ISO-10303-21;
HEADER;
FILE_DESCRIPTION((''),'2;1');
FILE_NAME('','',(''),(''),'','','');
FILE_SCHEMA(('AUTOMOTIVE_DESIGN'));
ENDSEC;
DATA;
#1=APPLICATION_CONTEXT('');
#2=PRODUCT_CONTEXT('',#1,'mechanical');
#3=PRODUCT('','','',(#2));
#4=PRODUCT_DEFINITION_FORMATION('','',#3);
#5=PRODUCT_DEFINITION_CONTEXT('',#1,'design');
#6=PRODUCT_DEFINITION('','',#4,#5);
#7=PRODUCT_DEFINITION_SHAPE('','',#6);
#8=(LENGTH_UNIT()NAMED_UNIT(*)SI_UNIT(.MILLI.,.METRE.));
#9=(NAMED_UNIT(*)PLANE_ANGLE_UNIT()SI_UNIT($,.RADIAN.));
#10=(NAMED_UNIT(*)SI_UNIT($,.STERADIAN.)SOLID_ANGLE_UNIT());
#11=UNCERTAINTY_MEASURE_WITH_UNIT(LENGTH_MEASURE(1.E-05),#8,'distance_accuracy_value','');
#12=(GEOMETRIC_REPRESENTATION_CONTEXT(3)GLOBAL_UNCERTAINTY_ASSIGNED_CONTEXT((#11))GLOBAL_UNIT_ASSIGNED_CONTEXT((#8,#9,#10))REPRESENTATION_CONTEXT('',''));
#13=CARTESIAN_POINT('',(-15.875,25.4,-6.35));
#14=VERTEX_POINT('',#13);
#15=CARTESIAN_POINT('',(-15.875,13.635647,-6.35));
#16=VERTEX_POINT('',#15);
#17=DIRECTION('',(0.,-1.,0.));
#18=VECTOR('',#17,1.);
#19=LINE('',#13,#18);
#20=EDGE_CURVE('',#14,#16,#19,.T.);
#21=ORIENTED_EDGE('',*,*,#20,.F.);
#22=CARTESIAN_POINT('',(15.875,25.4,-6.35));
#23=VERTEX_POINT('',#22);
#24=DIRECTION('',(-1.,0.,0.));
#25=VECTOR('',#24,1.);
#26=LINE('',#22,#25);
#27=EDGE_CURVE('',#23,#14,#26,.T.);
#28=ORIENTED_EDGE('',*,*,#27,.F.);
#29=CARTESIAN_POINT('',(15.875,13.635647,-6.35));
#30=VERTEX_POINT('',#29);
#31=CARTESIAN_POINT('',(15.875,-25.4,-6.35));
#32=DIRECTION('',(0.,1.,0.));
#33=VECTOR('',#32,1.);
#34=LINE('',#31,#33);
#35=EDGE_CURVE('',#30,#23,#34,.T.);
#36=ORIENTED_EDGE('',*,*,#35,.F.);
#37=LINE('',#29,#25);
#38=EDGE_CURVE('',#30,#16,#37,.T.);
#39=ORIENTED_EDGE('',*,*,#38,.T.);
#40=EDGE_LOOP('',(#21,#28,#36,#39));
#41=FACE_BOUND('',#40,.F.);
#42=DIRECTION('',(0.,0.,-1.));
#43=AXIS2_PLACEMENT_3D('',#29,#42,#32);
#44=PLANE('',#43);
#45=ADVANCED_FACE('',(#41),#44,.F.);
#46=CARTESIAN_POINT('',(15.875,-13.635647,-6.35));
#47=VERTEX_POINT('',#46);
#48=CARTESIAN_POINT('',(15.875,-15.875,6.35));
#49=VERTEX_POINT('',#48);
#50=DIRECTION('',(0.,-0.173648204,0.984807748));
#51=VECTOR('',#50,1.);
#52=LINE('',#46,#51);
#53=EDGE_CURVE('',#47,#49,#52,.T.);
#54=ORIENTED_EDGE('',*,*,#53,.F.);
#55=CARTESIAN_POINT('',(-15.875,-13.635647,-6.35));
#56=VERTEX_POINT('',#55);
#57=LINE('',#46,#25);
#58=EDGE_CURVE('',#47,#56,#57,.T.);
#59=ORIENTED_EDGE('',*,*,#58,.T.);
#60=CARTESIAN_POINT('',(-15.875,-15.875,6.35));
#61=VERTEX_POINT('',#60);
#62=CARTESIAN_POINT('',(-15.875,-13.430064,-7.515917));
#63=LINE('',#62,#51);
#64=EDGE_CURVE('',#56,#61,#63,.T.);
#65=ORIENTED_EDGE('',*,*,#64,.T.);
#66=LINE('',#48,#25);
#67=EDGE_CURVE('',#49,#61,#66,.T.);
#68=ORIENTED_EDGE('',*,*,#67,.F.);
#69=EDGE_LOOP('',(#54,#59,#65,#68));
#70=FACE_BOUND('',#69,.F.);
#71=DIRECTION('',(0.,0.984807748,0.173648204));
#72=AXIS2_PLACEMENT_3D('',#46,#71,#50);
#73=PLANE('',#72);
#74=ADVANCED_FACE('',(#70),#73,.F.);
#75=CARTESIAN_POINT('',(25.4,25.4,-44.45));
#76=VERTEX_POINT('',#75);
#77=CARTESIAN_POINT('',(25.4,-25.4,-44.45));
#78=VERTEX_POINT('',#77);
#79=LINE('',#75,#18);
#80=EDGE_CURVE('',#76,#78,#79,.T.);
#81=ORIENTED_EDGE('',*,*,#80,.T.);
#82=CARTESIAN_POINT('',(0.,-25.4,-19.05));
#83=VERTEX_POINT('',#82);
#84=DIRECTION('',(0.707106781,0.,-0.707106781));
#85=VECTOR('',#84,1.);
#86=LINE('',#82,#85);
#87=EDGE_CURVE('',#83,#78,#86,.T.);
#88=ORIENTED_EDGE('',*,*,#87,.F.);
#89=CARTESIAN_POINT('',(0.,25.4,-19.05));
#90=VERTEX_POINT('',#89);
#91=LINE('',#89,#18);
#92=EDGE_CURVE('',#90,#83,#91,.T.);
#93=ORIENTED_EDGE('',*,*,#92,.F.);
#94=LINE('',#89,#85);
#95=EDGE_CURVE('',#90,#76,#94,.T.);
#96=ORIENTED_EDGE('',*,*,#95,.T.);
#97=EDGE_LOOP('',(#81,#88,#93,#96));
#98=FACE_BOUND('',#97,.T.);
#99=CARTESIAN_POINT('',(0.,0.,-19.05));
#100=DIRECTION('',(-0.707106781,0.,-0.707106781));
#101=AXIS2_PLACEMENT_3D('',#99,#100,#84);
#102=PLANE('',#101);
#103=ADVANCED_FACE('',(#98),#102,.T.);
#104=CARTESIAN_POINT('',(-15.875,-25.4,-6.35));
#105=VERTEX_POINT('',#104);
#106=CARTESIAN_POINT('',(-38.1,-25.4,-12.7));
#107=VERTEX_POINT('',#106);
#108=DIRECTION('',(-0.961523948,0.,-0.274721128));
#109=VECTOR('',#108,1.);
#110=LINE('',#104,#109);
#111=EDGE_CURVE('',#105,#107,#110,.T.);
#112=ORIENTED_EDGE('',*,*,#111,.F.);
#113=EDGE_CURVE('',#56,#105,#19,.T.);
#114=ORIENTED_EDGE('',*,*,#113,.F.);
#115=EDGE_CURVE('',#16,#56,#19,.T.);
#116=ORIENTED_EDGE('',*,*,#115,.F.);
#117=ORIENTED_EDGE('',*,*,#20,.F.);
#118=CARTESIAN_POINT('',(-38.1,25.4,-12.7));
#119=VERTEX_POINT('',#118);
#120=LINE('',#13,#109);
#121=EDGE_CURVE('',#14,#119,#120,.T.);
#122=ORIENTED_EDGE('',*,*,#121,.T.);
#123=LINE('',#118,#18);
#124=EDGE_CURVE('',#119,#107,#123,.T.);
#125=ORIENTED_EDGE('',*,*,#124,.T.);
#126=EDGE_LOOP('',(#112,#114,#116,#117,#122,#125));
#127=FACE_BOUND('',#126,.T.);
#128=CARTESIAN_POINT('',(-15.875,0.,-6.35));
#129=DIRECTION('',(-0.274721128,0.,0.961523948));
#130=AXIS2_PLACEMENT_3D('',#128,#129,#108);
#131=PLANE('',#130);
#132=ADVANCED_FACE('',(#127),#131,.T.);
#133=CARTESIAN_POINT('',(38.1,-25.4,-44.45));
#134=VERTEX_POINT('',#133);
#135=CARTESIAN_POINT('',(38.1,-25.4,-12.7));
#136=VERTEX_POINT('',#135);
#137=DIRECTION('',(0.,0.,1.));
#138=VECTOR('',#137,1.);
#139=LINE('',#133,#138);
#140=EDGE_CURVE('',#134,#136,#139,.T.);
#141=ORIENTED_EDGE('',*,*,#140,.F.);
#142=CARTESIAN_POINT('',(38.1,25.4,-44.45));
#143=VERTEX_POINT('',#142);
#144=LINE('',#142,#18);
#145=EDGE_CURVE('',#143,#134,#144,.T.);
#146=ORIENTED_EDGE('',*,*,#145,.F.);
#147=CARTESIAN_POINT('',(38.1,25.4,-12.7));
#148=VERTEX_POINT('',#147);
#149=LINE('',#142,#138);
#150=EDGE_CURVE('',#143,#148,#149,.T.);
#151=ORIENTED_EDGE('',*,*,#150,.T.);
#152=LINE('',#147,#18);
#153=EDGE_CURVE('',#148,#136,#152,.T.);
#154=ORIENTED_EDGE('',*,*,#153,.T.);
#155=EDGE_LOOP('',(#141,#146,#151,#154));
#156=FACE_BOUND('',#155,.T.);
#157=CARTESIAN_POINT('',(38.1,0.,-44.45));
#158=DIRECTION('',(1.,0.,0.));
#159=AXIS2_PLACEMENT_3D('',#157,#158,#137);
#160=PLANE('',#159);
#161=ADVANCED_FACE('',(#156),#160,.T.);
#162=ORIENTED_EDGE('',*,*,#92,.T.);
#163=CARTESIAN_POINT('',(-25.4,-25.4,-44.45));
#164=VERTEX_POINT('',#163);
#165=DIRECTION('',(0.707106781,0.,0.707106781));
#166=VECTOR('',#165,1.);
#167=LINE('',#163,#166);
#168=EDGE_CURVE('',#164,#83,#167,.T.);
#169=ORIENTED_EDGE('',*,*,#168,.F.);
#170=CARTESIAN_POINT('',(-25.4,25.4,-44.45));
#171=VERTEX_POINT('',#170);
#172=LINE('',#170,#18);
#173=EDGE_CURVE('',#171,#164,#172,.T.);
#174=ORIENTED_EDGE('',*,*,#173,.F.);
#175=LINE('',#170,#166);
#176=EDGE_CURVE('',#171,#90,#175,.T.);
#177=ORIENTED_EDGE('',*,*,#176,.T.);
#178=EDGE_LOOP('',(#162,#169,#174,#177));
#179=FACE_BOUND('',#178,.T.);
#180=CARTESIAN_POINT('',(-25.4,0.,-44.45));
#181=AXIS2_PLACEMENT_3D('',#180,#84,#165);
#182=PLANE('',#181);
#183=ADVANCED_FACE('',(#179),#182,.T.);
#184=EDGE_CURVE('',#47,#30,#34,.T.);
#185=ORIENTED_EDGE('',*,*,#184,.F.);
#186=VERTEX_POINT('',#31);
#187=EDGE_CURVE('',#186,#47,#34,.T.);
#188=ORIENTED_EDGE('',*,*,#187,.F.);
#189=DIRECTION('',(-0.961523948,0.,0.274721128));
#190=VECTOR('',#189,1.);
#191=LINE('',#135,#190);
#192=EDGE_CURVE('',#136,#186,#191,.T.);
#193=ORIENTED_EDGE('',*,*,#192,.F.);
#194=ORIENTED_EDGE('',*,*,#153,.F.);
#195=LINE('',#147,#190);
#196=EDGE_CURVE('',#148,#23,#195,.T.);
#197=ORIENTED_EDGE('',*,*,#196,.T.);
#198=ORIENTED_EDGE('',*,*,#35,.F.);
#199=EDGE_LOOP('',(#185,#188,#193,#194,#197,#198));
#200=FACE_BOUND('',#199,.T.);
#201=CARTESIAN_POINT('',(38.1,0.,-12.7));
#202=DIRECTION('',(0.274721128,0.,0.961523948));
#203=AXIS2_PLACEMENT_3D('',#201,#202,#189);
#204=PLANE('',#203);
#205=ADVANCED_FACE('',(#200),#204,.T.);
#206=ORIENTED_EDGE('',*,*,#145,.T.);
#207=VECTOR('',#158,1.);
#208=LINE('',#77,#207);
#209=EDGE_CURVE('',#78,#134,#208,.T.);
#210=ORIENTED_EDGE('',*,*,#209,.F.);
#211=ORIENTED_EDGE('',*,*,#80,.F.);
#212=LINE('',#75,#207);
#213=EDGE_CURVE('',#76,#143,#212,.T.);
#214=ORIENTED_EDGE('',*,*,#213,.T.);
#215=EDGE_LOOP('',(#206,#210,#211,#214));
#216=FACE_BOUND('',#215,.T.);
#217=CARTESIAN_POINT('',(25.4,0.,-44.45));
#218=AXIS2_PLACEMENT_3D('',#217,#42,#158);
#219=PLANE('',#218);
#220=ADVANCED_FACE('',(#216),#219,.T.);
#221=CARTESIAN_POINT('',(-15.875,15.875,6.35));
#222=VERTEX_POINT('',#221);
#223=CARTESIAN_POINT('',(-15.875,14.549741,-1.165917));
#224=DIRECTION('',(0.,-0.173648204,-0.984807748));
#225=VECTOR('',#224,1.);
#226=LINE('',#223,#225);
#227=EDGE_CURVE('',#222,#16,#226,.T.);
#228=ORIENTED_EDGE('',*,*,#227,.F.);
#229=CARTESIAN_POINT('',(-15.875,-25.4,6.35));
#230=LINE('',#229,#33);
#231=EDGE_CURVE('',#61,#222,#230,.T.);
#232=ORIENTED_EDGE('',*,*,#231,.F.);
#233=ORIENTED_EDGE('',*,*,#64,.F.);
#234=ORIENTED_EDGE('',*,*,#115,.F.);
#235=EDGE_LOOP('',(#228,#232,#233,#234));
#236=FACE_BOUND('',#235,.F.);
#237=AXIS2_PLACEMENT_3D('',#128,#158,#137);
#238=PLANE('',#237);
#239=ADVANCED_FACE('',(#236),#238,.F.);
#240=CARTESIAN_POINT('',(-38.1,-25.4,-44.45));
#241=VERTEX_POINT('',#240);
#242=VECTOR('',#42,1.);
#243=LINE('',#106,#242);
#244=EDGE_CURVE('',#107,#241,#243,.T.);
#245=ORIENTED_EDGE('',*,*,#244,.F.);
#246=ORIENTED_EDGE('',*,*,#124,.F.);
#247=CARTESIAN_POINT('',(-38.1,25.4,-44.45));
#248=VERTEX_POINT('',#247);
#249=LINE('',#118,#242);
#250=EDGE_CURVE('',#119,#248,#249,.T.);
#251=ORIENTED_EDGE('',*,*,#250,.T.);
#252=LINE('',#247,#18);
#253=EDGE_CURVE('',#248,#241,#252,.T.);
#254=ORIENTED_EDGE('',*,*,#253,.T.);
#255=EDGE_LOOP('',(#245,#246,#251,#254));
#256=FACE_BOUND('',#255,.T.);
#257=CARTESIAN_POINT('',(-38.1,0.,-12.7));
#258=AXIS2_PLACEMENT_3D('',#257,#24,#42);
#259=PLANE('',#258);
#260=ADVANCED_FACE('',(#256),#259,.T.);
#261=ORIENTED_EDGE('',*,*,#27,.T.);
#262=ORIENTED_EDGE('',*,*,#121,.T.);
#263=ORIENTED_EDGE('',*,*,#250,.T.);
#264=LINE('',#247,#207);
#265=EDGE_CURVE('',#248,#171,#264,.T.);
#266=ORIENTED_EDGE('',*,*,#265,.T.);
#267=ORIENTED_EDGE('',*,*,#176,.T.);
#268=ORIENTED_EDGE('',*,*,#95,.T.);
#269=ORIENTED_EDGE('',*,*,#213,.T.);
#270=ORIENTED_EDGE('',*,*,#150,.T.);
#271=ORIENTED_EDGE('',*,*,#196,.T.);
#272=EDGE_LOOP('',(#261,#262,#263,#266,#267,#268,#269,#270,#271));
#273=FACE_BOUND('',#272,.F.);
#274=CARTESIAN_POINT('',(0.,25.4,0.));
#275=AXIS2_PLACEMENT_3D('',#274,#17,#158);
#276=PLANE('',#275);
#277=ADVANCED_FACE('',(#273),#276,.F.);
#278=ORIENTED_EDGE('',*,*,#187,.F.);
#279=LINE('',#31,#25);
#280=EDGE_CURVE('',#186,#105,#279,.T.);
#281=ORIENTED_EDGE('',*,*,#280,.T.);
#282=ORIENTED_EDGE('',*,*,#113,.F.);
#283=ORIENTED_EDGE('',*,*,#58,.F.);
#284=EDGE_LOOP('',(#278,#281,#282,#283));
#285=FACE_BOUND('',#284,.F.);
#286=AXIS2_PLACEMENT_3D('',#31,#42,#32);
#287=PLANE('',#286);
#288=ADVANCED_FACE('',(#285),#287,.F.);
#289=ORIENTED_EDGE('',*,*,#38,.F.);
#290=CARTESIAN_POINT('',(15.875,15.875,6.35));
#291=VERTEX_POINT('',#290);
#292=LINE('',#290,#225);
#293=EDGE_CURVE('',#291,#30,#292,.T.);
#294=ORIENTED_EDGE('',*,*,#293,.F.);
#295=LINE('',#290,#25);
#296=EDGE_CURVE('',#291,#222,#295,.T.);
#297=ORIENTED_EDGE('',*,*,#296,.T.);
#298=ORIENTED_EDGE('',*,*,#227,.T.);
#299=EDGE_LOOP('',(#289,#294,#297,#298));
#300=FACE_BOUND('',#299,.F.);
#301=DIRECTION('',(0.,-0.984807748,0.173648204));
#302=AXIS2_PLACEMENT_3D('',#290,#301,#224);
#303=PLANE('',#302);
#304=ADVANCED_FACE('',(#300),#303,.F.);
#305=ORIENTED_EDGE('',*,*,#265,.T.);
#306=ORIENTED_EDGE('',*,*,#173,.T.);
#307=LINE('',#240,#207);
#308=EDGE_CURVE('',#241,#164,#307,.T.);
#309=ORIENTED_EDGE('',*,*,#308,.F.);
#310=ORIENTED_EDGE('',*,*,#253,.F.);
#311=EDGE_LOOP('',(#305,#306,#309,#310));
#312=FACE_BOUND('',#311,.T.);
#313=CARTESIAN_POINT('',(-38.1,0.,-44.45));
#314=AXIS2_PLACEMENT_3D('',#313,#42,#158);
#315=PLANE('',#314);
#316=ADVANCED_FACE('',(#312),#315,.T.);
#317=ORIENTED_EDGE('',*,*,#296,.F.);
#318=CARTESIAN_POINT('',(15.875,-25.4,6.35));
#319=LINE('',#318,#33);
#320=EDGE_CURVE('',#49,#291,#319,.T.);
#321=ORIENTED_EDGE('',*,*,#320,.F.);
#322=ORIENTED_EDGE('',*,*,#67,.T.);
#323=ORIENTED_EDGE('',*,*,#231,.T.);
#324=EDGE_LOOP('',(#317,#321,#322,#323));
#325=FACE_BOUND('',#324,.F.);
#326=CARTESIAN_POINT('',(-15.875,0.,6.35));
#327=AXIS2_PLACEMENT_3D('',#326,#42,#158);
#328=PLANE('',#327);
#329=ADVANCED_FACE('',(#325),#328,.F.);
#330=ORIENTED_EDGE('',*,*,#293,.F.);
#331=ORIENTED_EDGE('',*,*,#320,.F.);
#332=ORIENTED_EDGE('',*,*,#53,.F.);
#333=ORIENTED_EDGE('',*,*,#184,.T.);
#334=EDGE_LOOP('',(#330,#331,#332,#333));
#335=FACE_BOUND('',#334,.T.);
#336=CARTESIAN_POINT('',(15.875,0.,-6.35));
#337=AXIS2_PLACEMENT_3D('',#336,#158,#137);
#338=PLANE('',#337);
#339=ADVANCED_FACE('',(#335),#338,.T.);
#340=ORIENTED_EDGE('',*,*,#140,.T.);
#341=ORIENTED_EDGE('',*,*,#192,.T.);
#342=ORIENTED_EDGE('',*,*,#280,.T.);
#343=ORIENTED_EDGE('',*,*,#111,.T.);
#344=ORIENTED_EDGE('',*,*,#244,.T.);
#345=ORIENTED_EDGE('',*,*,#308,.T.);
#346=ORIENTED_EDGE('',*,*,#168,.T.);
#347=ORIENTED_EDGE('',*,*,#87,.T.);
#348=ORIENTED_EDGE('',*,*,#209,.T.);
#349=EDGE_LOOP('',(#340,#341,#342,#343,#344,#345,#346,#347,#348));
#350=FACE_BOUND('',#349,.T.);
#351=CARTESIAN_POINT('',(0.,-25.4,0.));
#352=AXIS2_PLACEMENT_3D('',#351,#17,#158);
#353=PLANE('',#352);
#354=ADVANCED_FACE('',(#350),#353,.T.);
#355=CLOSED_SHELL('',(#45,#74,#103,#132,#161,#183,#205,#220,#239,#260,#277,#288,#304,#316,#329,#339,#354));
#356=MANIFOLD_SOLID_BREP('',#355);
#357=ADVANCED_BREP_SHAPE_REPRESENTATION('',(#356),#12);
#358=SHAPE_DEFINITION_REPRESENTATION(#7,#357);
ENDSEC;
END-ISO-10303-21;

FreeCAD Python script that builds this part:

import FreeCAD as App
import Part
import Sketcher
Q = App.Units.Quantity

doc = App.newDocument("Part")
body = doc.addObject("PartDesign::Body", "Body")

sketch1 = doc.addObject("Sketcher::SketchObject", "Sketch")
body.addObject(sketch1)
sketch1.AttachmentSupport = (doc.XZ_Plane, [""])
sketch1.MapMode = "FlatFace"
sketch1.addGeometry(Part.LineSegment(App.Vector(-16, 6, 0), App.Vector(-16, -6, 0)), False)
sketch1.addGeometry(Part.LineSegment(App.Vector(-16, -6, 0), App.Vector(-38, -13, 0)), False)
sketch1.addGeometry(Part.LineSegment(App.Vector(-38, -13, 0), App.Vector(-38, -44, 0)), False)
sketch1.addGeometry(Part.LineSegment(App.Vector(-38, -44, 0), App.Vector(-25, -44, 0)), False)
sketch1.addGeometry(Part.LineSegment(App.Vector(-25, -44, 0), App.Vector(0, -19, 0)), False)
sketch1.addGeometry(Part.LineSegment(App.Vector(0, -19, 0), App.Vector(25, -44, 0)), False)
sketch1.addGeometry(Part.LineSegment(App.Vector(25, -44, 0), App.Vector(38, -44, 0)), False)
sketch1.addGeometry(Part.LineSegment(App.Vector(38, -44, 0), App.Vector(38, -13, 0)), False)
sketch1.addGeometry(Part.LineSegment(App.Vector(38, -13, 0), App.Vector(16, -6, 0)), False)
sketch1.addGeometry(Part.LineSegment(App.Vector(16, -6, 0), App.Vector(16, 6, 0)), False)
sketch1.addGeometry(Part.LineSegment(App.Vector(16, 6, 0), App.Vector(-16, 6, 0)), False)
sketch1.addConstraint(Sketcher.Constraint("Coincident", 0, 2, 1, 1))
sketch1.addConstraint(Sketcher.Constraint("Coincident", 1, 2, 2, 1))
sketch1.addConstraint(Sketcher.Constraint("Coincident", 2, 2, 3, 1))
sketch1.addConstraint(Sketcher.Constraint("Coincident", 3, 2, 4, 1))
sketch1.addConstraint(Sketcher.Constraint("Coincident", 4, 2, 5, 1))
sketch1.addConstraint(Sketcher.Constraint("Coincident", 5, 2, 6, 1))
sketch1.addConstraint(Sketcher.Constraint("Coincident", 6, 2, 7, 1))
sketch1.addConstraint(Sketcher.Constraint("Coincident", 7, 2, 8, 1))
sketch1.addConstraint(Sketcher.Constraint("Coincident", 8, 2, 9, 1))
sketch1.addConstraint(Sketcher.Constraint("Coincident", 9, 2, 10, 1))
sketch1.addConstraint(Sketcher.Constraint("Coincident", 10, 2, 0, 1))
sketch1.addConstraint(Sketcher.Constraint("Vertical", 0))
sketch1.addConstraint(Sketcher.Constraint("Vertical", 2))
sketch1.addConstraint(Sketcher.Constraint("Horizontal", 3))
sketch1.addConstraint(Sketcher.Constraint("Horizontal", 6))
sketch1.addConstraint(Sketcher.Constraint("Vertical", 7))
sketch1.addConstraint(Sketcher.Constraint("Vertical", 9))
sketch1.addConstraint(Sketcher.Constraint("Horizontal", 10))
sketch1.addConstraint(Sketcher.Constraint("Symmetric", 0, 2, 9, 2, -1, 1))
sketch1.addConstraint(Sketcher.Constraint("Symmetric", 3, 2, 5, 2, -2))
sketch1.addConstraint(Sketcher.Constraint("Symmetric", 1, 2, 7, 2, -2))
sketch1.addConstraint(Sketcher.Constraint("PointOnObject", 4, 2, -2))
sketch1.addConstraint(Sketcher.Constraint("Perpendicular", 4, 5))
sketch1.addConstraint(Sketcher.Constraint("Horizontal", 0, 2, 8, 2))
sketch1.addConstraint(Sketcher.Constraint("Equal", 6, 0))
sketch1.addConstraint(Sketcher.Constraint("Equal", 10, 2))
sketch1.addConstraint(Sketcher.Constraint("DistanceX", 3, 1, 3, 2, Q("0.5 in")))
sketch1.addConstraint(Sketcher.Constraint("DistanceX", 3, 2, -1, 1, Q("1 in")))
sketch1.addConstraint(Sketcher.Constraint("DistanceY", 4, 2, 9, 2, Q("1 in")))
sketch1.addConstraint(Sketcher.Constraint("DistanceX", 10, 2, 10, 1, Q("1.25 in")))
pad1 = doc.addObject("PartDesign::Pad", "Pad")
body.addObject(pad1)
pad1.Profile = sketch1
pad1.Length = Q("2 in")
pad1.Midplane = True

sketch2 = doc.addObject("Sketcher::SketchObject", "Sketch001")
body.addObject(sketch2)
sketch2.AttachmentSupport = (doc.YZ_Plane, [""])
sketch2.MapMode = "FlatFace"
sketch2.AttachmentOffset = App.Placement(App.Vector(0, 0, 0.625 * 25.4), App.Rotation())
sketch2.addGeometry(Part.LineSegment(App.Vector(-14, -6, 0), App.Vector(-16, 6, 0)), False)
sketch2.addGeometry(Part.LineSegment(App.Vector(-16, 6, 0), App.Vector(-25, 6, 0)), False)
sketch2.addGeometry(Part.LineSegment(App.Vector(-25, 6, 0), App.Vector(-25, -6, 0)), False)
sketch2.addGeometry(Part.LineSegment(App.Vector(-25, -6, 0), App.Vector(-14, -6, 0)), False)
sketch2.addGeometry(Part.LineSegment(App.Vector(25, 6, 0), App.Vector(16, 6, 0)), False)
sketch2.addGeometry(Part.LineSegment(App.Vector(16, 6, 0), App.Vector(14, -6, 0)), False)
sketch2.addGeometry(Part.LineSegment(App.Vector(14, -6, 0), App.Vector(25, -6, 0)), False)
sketch2.addGeometry(Part.LineSegment(App.Vector(25, -6, 0), App.Vector(25, 6, 0)), False)
sketch2.addConstraint(Sketcher.Constraint("Coincident", 0, 2, 1, 1))
sketch2.addConstraint(Sketcher.Constraint("Coincident", 1, 2, 2, 1))
sketch2.addConstraint(Sketcher.Constraint("Coincident", 2, 2, 3, 1))
sketch2.addConstraint(Sketcher.Constraint("Coincident", 3, 2, 0, 1))
sketch2.addConstraint(Sketcher.Constraint("Coincident", 4, 2, 5, 1))
sketch2.addConstraint(Sketcher.Constraint("Coincident", 5, 2, 6, 1))
sketch2.addConstraint(Sketcher.Constraint("Coincident", 6, 2, 7, 1))
sketch2.addConstraint(Sketcher.Constraint("Coincident", 7, 2, 4, 1))
sketch2.addConstraint(Sketcher.Constraint("Horizontal", 1))
sketch2.addConstraint(Sketcher.Constraint("Vertical", 2))
sketch2.addConstraint(Sketcher.Constraint("Horizontal", 3))
sketch2.addConstraint(Sketcher.Constraint("Horizontal", 4))
sketch2.addConstraint(Sketcher.Constraint("Horizontal", 6))
sketch2.addConstraint(Sketcher.Constraint("Vertical", 7))
sketch2.addConstraint(Sketcher.Constraint("Symmetric", 1, 2, 6, 2, -1, 1))
sketch2.addConstraint(Sketcher.Constraint("Symmetric", 0, 2, 4, 2, -2))
sketch2.addConstraint(Sketcher.Constraint("Symmetric", 3, 2, 5, 2, -2))
sketch2.addConstraint(Sketcher.Constraint("DistanceY", 2, 2, 2, 1, Q("0.5 in")))
sketch2.addConstraint(Sketcher.Constraint("DistanceX", 1, 2, -1, 1, Q("1 in")))
sketch2.addConstraint(Sketcher.Constraint("Angle", 0, Q("100.000002 deg")))
sketch2.addConstraint(Sketcher.Constraint("DistanceX", 1, 2, 1, 1, Q("0.375 in")))
pocket1 = doc.addObject("PartDesign::Pocket", "Pocket")
body.addObject(pocket1)
pocket1.Profile = sketch2
pocket1.Type = "ThroughAll"

doc.recompute()
